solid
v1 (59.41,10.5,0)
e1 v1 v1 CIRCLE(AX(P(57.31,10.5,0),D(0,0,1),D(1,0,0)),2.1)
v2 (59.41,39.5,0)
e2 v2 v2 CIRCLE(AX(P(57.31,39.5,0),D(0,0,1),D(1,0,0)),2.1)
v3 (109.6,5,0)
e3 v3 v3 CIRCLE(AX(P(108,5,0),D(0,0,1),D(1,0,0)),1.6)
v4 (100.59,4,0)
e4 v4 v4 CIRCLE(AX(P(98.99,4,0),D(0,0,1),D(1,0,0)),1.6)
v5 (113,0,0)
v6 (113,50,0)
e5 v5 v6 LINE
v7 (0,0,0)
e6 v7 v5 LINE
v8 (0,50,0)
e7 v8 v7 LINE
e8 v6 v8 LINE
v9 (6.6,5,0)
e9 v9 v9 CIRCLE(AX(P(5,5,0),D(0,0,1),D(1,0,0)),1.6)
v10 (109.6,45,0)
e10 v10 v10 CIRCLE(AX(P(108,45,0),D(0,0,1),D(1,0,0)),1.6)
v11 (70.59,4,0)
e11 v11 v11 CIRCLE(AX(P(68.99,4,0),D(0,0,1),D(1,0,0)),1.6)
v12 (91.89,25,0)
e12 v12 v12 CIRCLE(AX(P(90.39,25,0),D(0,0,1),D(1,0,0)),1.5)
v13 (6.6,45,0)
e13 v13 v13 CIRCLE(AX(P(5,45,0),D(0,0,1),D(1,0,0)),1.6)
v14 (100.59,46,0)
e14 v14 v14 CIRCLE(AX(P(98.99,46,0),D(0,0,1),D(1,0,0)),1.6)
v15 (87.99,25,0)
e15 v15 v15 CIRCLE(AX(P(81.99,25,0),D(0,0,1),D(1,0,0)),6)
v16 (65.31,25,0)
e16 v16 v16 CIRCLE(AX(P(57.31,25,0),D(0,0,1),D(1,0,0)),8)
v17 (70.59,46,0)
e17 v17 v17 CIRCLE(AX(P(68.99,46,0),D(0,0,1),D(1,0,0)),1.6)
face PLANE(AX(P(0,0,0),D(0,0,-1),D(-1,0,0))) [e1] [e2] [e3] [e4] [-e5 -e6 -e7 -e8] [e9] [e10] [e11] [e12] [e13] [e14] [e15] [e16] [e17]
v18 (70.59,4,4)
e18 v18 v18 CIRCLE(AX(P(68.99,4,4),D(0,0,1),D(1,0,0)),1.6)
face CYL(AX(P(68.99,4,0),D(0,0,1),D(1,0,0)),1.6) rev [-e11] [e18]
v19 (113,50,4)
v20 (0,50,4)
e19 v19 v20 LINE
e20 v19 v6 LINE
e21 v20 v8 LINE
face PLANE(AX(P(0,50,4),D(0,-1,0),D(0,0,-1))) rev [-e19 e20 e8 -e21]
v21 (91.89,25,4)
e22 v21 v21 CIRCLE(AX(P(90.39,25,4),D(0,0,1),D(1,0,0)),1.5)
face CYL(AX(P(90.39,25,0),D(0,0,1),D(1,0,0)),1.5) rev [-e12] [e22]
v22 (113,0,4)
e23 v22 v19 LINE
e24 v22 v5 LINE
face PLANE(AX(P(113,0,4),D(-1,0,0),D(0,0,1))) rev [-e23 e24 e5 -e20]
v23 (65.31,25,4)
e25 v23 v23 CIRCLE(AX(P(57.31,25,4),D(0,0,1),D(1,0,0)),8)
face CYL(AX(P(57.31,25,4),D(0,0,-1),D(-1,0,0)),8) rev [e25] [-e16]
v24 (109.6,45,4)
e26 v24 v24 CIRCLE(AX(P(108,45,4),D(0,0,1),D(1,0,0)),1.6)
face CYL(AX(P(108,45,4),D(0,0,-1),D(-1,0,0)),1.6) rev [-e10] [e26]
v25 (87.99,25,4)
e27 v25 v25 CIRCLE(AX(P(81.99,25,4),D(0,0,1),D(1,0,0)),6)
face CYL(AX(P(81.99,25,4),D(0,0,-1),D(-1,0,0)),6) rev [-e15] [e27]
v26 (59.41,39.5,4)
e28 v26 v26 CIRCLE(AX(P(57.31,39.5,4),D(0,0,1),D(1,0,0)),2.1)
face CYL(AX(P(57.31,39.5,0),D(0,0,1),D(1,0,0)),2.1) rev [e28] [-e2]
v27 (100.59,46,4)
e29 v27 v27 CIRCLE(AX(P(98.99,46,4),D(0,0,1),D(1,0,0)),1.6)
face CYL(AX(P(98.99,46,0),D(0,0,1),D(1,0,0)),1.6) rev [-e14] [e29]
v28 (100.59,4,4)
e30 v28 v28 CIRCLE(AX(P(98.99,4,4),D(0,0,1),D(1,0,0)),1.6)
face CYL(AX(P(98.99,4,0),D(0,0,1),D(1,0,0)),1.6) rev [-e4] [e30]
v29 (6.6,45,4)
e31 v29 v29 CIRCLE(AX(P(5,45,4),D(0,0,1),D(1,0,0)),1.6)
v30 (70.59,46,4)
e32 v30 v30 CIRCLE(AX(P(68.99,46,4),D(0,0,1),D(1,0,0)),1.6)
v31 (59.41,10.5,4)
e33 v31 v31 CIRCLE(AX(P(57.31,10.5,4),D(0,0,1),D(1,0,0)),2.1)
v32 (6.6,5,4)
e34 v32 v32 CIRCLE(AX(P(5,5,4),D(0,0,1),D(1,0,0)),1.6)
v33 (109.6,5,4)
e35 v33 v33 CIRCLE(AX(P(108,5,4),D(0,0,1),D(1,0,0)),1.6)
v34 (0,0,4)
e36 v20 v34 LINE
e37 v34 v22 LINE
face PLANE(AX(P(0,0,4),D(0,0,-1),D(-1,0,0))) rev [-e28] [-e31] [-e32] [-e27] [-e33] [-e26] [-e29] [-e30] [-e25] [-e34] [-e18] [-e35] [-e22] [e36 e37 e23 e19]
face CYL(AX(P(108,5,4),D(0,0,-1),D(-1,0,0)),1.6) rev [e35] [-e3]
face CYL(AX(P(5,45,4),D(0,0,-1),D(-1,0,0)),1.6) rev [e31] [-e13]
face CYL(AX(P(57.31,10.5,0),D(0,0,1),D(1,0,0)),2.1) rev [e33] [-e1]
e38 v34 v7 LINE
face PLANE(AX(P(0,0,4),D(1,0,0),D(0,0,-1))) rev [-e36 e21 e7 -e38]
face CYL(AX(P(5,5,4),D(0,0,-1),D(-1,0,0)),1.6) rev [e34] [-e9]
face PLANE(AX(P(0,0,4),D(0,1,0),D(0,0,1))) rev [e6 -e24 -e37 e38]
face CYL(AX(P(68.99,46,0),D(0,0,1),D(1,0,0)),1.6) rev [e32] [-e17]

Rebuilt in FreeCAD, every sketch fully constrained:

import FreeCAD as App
import Part
import Sketcher

doc = App.newDocument("Part")
params = doc.addObject("Spreadsheet::Sheet", "Params")
for row, (alias, value) in enumerate([
    ("sketch1_diameter", "16 mm"),
    ("sketch1_diameter2", "12 mm"),
    ("sketch1_diameter3", "3.2 mm"),
    ("sketch1_width", "113 mm"),
    ("sketch1_height", "50 mm"),
    ("pad1_length", "4 mm"),
    ("sketch2_diameter", "3 mm"),
    ("sketch2_diameter2", "3.2 mm"),
    ("sketch2_diameter3", "4.2 mm"),
], start=1):
    params.set(f"A{row}", alias)
    params.set(f"B{row}", "=" + value)
    params.setAlias(f"B{row}", alias)

body = doc.addObject("PartDesign::Body", "Body")

sketch1 = body.newObject("Sketcher::SketchObject", "Sketch")
sketch1.AttachmentSupport = (doc.getObject("XY_Plane"), [""])
sketch1.MapMode = "FlatFace"
sketch1.addGeometry(Part.LineSegment(App.Vector(0, 50, 0), App.Vector(0, 0, 0)), False)
sketch1.addGeometry(Part.LineSegment(App.Vector(0, 0, 0), App.Vector(113, 0, 0)), False)
sketch1.addGeometry(Part.LineSegment(App.Vector(113, 0, 0), App.Vector(113, 50, 0)), False)
sketch1.addGeometry(Part.LineSegment(App.Vector(113, 50, 0), App.Vector(0, 50, 0)), False)
sketch1.addGeometry(Part.Circle(App.Vector(5, 5, 0), App.Vector(0, 0, 1), 1.6), False)
sketch1.addGeometry(Part.Circle(App.Vector(108, 5, 0), App.Vector(0, 0, 1), 1.6), False)
sketch1.addGeometry(Part.Circle(App.Vector(5, 45, 0), App.Vector(0, 0, 1), 1.6), False)
sketch1.addGeometry(Part.Circle(App.Vector(57.31, 25, 0), App.Vector(0, 0, 1), 8), False)
sketch1.addGeometry(Part.Circle(App.Vector(81.99, 25, 0), App.Vector(0, 0, 1), 6), False)
sketch1.addGeometry(Part.Circle(App.Vector(108, 45, 0), App.Vector(0, 0, 1), 1.6), False)
sketch1.addConstraint(Sketcher.Constraint("Coincident", 0, 2, 1, 1))
sketch1.addConstraint(Sketcher.Constraint("Coincident", 1, 2, 2, 1))
sketch1.addConstraint(Sketcher.Constraint("Coincident", 2, 2, 3, 1))
sketch1.addConstraint(Sketcher.Constraint("Coincident", 3, 2, 0, 1))
sketch1.addConstraint(Sketcher.Constraint("Vertical", 0))
sketch1.addConstraint(Sketcher.Constraint("Horizontal", 1))
sketch1.addConstraint(Sketcher.Constraint("Vertical", 2))
sketch1.addConstraint(Sketcher.Constraint("Horizontal", 3))
sketch1.addConstraint(Sketcher.Constraint("Coincident", 0, 2, -1, 1))
sketch1.addConstraint(Sketcher.Constraint("Equal", 4, 5))
sketch1.addConstraint(Sketcher.Constraint("Equal", 5, 6))
sketch1.addConstraint(Sketcher.Constraint("Equal", 6, 9))
sketch1.addConstraint(Sketcher.Constraint("Horizontal", 4, 3, 5, 3))
sketch1.addConstraint(Sketcher.Constraint("Horizontal", 7, 3, 8, 3))
sketch1.addConstraint(Sketcher.Constraint("Horizontal", 6, 3, 9, 3))
sketch1.addConstraint(Sketcher.Constraint("Vertical", 4, 3, 6, 3))
sketch1.addConstraint(Sketcher.Constraint("Vertical", 5, 3, 9, 3))
sketch1.addConstraint(Sketcher.Constraint("Diameter", 7, 16.0))
sketch1.addConstraint(Sketcher.Constraint("Diameter", 8, 12.0))
sketch1.addConstraint(Sketcher.Constraint("Diameter", 4, 3.2))
sketch1.addConstraint(Sketcher.Constraint("DistanceX", 1, 1, 1, 2, 113.0))
sketch1.addConstraint(Sketcher.Constraint("DistanceY", 0, 2, 0, 1, 50.0))
sketch1.addConstraint(Sketcher.Constraint("DistanceX", -1, 1, 4, 3, 5.0))
sketch1.addConstraint(Sketcher.Constraint("DistanceY", -1, 1, 4, 3, 5.0))
sketch1.addConstraint(Sketcher.Constraint("DistanceX", -1, 1, 5, 3, 108.0))
sketch1.addConstraint(Sketcher.Constraint("DistanceY", -1, 1, 6, 3, 45.0))
sketch1.addConstraint(Sketcher.Constraint("DistanceY", -1, 1, 7, 3, 25.0))
sketch1.addConstraint(Sketcher.Constraint("DistanceX", -1, 1, 7, 3, 57.31))
sketch1.addConstraint(Sketcher.Constraint("DistanceX", -1, 1, 8, 3, 81.99))
sketch1.setExpression("Constraints[17]", "Params.sketch1_diameter")
sketch1.setExpression("Constraints[18]", "Params.sketch1_diameter2")
sketch1.setExpression("Constraints[19]", "Params.sketch1_diameter3")
sketch1.setExpression("Constraints[20]", "Params.sketch1_width")
sketch1.setExpression("Constraints[21]", "Params.sketch1_height")
pad1 = body.newObject("PartDesign::Pad", "Pad")
pad1.Profile = sketch1
pad1.setExpression("Length", "Params.pad1_length")

sketch2 = body.newObject("Sketcher::SketchObject", "Sketch001")
sketch2.AttachmentSupport = (doc.getObject("XY_Plane"), [""])
sketch2.MapMode = "FlatFace"
sketch2.AttachmentOffset = App.Placement(App.Vector(0, 0, 4), App.Rotation())
sketch2.addGeometry(Part.Circle(App.Vector(90.39, 25, 0), App.Vector(0, 0, 1), 1.5), False)
sketch2.addGeometry(Part.Circle(App.Vector(98.99, 46, 0), App.Vector(0, 0, 1), 1.6), False)
sketch2.addGeometry(Part.Circle(App.Vector(98.99, 4, 0), App.Vector(0, 0, 1), 1.6), False)
sketch2.addGeometry(Part.Circle(App.Vector(68.99, 4, 0), App.Vector(0, 0, 1), 1.6), False)
sketch2.addGeometry(Part.Circle(App.Vector(68.99, 46, 0), App.Vector(0, 0, 1), 1.6), False)
sketch2.addGeometry(Part.Circle(App.Vector(57.31, 39.5, 0), App.Vector(0, 0, 1), 2.1), False)
sketch2.addGeometry(Part.Circle(App.Vector(57.31, 10.5, 0), App.Vector(0, 0, 1), 2.1), False)
sketch2.addConstraint(Sketcher.Constraint("Equal", 1, 2))
sketch2.addConstraint(Sketcher.Constraint("Equal", 2, 3))
sketch2.addConstraint(Sketcher.Constraint("Equal", 3, 4))
sketch2.addConstraint(Sketcher.Constraint("Equal", 5, 6))
sketch2.addConstraint(Sketcher.Constraint("Horizontal", 2, 3, 3, 3))
sketch2.addConstraint(Sketcher.Constraint("Horizontal", 1, 3, 4, 3))
sketch2.addConstraint(Sketcher.Constraint("Vertical", 1, 3, 2, 3))
sketch2.addConstraint(Sketcher.Constraint("Vertical", 3, 3, 4, 3))
sketch2.addConstraint(Sketcher.Constraint("Vertical", 5, 3, 6, 3))
sketch2.addConstraint(Sketcher.Constraint("Diameter", 0, 3.0))
sketch2.addConstraint(Sketcher.Constraint("Diameter", 1, 3.2))
sketch2.addConstraint(Sketcher.Constraint("Diameter", 5, 4.2))
sketch2.addConstraint(Sketcher.Constraint("DistanceY", -1, 1, 0, 3, 25.0))
sketch2.addConstraint(Sketcher.Constraint("DistanceY", -1, 1, 1, 3, 46.0))
sketch2.addConstraint(Sketcher.Constraint("DistanceY", -1, 1, 2, 3, 4.0))
sketch2.addConstraint(Sketcher.Constraint("DistanceX", 3, 3, 2, 3, 30.0))
sketch2.addConstraint(Sketcher.Constraint("DistanceY", 6, 3, 5, 3, 29.0))
sketch2.addConstraint(Sketcher.Constraint("DistanceY", -1, 1, 5, 3, 39.5))
sketch2.addConstraint(Sketcher.Constraint("DistanceX", 0, 3, 1, 3, 8.6))
sketch2.addConstraint(Sketcher.Constraint("DistanceX", -1, 1, 0, 3, 90.39))
sketch2.addConstraint(Sketcher.Constraint("DistanceX", -1, 1, 5, 3, 57.31))
sketch2.setExpression("Constraints[9]", "Params.sketch2_diameter")
sketch2.setExpression("Constraints[10]", "Params.sketch2_diameter2")
sketch2.setExpression("Constraints[11]", "Params.sketch2_diameter3")
pocket1 = body.newObject("PartDesign::Pocket", "Pocket")
pocket1.Profile = sketch2
pocket1.Type = "ThroughAll"

doc.recompute()
